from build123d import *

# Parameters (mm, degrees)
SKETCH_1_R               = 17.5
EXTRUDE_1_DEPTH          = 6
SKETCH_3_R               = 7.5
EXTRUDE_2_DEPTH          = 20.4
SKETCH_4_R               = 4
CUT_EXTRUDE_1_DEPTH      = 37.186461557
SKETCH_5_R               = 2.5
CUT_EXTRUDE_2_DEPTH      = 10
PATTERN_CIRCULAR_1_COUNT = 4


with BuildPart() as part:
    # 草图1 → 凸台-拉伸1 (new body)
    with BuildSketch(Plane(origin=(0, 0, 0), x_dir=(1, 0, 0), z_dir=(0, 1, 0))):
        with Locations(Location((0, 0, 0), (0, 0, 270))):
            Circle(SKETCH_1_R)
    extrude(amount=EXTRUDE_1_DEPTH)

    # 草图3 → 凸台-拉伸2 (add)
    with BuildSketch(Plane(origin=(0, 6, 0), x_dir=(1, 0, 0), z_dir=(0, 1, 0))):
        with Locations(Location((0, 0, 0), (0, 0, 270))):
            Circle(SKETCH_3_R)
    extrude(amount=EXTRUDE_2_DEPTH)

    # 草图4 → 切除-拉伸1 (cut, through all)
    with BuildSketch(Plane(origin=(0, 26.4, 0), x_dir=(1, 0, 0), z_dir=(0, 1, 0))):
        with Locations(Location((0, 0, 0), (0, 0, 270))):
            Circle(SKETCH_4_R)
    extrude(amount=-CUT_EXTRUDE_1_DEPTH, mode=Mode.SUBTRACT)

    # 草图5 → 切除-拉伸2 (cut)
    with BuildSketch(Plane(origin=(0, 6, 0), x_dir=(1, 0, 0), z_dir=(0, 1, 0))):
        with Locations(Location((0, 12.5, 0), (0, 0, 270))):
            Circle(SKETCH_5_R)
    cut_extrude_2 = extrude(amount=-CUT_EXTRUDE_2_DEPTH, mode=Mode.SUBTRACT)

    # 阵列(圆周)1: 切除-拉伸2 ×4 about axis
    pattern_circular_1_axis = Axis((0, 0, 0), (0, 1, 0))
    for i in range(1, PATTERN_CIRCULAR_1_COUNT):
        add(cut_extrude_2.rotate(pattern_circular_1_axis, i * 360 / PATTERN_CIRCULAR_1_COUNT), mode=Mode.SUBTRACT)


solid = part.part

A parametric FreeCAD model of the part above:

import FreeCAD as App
import Part
import Sketcher

doc = App.newDocument("Part")
params = doc.addObject("Spreadsheet::Sheet", "Params")
for row, (alias, value) in enumerate([
    ("sketch1_diameter", "35 mm"),
    ("pad1_length", "6 mm"),
    ("sketch2_diameter", "15 mm"),
    ("pad2_length", "20.4 mm"),
    ("sketch3_diameter", "8 mm"),
    ("sketch4_diameter", "5 mm"),
    ("pocket2_length", "10 mm"),
], start=1):
    params.set(f"A{row}", alias)
    params.set(f"B{row}", "=" + value)
    params.setAlias(f"B{row}", alias)

body = doc.addObject("PartDesign::Body", "Body")

sketch1 = body.newObject("Sketcher::SketchObject", "Sketch")
sketch1.AttachmentSupport = (doc.getObject("XZ_Plane"), [""])
sketch1.MapMode = "FlatFace"
sketch1.addGeometry(Part.Circle(App.Vector(0, 0, 0), App.Vector(0, 0, 1), 18), False)
sketch1.addConstraint(Sketcher.Constraint("Coincident", 0, 3, -1, 1))
sketch1.addConstraint(Sketcher.Constraint("Diameter", 0, 35.0))
sketch1.setExpression("Constraints[1]", "Params.sketch1_diameter")
pad1 = body.newObject("PartDesign::Pad", "Pad")
pad1.Profile = sketch1
pad1.setExpression("Length", "Params.pad1_length")
pad1.Reversed = True

sketch2 = body.newObject("Sketcher::SketchObject", "Sketch001")
sketch2.AttachmentSupport = (doc.getObject("XZ_Plane"), [""])
sketch2.MapMode = "FlatFace"
sketch2.AttachmentOffset = App.Placement(App.Vector(0, 0, -6), App.Rotation())
sketch2.addGeometry(Part.Circle(App.Vector(0, 0, 0), App.Vector(0, 0, 1), 8), False)
sketch2.addConstraint(Sketcher.Constraint("Coincident", 0, 3, -1, 1))
sketch2.addConstraint(Sketcher.Constraint("Diameter", 0, 15.0))
sketch2.setExpression("Constraints[1]", "Params.sketch2_diameter")
pad2 = body.newObject("PartDesign::Pad", "Pad001")
pad2.Profile = sketch2
pad2.setExpression("Length", "Params.pad2_length")
pad2.Reversed = True

sketch3 = body.newObject("Sketcher::SketchObject", "Sketch002")
sketch3.AttachmentSupport = (doc.getObject("XZ_Plane"), [""])
sketch3.MapMode = "FlatFace"
sketch3.AttachmentOffset = App.Placement(App.Vector(0, 0, -26.4), App.Rotation())
sketch3.addGeometry(Part.Circle(App.Vector(0, 0, 0), App.Vector(0, 0, 1), 4), False)
sketch3.addConstraint(Sketcher.Constraint("Coincident", 0, 3, -1, 1))
sketch3.addConstraint(Sketcher.Constraint("Diameter", 0, 8.0))
sketch3.setExpression("Constraints[1]", "Params.sketch3_diameter")
pocket1 = body.newObject("PartDesign::Pocket", "Pocket")
pocket1.Profile = sketch3
pocket1.Type = "ThroughAll"
pocket1.Reversed = True

sketch4 = body.newObject("Sketcher::SketchObject", "Sketch003")
sketch4.AttachmentSupport = (doc.getObject("XZ_Plane"), [""])
sketch4.MapMode = "FlatFace"
sketch4.AttachmentOffset = App.Placement(App.Vector(0, 0, -6), App.Rotation())
sketch4.addGeometry(Part.Circle(App.Vector(0, -12.5, 0), App.Vector(0, 0, 1), 2.5), False)
sketch4.addConstraint(Sketcher.Constraint("PointOnObject", 0, 3, -2))
sketch4.addConstraint(Sketcher.Constraint("Diameter", 0, 5.0))
sketch4.addConstraint(Sketcher.Constraint("DistanceY", 0, 3, -1, 1, 12.5))
sketch4.setExpression("Constraints[1]", "Params.sketch4_diameter")
pocket2 = body.newObject("PartDesign::Pocket", "Pocket001")
pocket2.Profile = sketch4
pocket2.setExpression("Length", "Params.pocket2_length")
pocket2.Reversed = True
doc.recompute()

polarpattern = body.newObject("PartDesign::PolarPattern", "PolarPattern")
polarpattern.Originals = [pocket2]
polarpattern.Axis = (doc.getObject("Y_Axis"), [""])
polarpattern.Angle = 360
polarpattern.Occurrences = 4
body.Tip = polarpattern

doc.recompute()
